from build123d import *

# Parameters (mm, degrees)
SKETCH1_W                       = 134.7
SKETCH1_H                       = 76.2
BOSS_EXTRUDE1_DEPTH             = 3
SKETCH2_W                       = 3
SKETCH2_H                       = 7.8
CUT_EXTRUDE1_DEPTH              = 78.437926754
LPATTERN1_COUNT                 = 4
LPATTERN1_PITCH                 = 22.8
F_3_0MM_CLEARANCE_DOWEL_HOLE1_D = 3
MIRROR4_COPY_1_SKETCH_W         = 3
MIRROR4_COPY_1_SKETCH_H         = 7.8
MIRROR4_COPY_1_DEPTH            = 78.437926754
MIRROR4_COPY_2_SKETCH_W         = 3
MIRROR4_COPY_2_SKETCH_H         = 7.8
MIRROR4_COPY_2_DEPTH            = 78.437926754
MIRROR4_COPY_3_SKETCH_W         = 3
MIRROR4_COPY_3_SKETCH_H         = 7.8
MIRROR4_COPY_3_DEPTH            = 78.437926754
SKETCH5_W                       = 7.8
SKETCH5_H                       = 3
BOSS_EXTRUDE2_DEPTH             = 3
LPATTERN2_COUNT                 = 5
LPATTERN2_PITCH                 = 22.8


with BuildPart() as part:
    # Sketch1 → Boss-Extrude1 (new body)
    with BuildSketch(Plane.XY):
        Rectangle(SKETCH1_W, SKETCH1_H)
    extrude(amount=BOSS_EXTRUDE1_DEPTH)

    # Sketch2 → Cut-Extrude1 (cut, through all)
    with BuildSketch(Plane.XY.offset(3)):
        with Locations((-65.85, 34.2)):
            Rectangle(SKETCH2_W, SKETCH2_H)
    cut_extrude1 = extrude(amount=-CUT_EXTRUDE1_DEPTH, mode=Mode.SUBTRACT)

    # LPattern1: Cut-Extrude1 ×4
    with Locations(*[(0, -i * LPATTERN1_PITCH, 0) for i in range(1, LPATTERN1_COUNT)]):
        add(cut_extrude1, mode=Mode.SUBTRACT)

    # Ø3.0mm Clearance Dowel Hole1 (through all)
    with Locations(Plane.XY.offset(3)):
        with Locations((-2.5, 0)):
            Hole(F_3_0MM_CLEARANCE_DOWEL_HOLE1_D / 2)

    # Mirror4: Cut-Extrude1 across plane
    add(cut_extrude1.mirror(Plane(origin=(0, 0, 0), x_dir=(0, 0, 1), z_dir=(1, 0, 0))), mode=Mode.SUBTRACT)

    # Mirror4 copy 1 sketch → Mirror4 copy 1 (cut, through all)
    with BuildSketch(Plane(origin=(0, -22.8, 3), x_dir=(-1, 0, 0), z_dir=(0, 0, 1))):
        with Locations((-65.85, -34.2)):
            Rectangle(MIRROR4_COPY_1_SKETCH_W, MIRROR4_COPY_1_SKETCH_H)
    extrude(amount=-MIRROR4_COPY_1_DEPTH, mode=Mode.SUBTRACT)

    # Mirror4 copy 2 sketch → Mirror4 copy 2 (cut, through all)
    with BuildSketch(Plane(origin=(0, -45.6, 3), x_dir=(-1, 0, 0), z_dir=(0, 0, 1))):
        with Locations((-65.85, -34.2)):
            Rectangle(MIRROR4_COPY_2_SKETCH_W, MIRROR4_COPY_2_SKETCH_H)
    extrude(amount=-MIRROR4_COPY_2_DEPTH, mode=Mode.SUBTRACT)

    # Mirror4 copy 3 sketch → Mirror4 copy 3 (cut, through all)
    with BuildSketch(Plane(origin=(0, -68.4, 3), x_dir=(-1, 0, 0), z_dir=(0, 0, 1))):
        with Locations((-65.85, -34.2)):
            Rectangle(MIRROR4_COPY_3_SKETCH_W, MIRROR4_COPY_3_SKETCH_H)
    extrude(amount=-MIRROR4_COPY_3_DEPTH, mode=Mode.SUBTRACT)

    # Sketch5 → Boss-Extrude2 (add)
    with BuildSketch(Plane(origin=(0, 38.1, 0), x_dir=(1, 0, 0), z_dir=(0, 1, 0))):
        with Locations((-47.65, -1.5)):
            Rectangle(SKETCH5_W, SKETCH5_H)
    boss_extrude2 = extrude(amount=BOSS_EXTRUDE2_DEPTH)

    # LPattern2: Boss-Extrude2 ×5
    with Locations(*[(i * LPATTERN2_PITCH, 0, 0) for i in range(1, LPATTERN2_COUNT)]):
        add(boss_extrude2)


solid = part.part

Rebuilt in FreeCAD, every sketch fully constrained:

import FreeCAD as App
import Part
import Sketcher
from FreeCAD import Vector
Q = App.Units.Quantity


def add_polygon(sketch, points):
    """Adds a closed chain of lines whose ends are joined by coincident constraints."""
    first, n = sketch.GeometryCount, len(points)
    for a, b in zip(points, points[1:] + points[:1]):
        sketch.addGeometry(Part.LineSegment(App.Vector(*a, 0), App.Vector(*b, 0)), False)
    for i in range(n):
        sketch.addConstraint(Sketcher.Constraint("Coincident", first + i, 2, first + (i + 1) % n, 1))

doc = App.newDocument("Part")
body = doc.addObject("PartDesign::Body", "Body")

sketch1 = body.newObject("Sketcher::SketchObject", "Sketch")
sketch1.AttachmentSupport = (doc.getObject("XY_Plane"), [""])
sketch1.MapMode = "FlatFace"
add_polygon(sketch1, [(-67, 38), (-67, -38), (67, -38), (67, 38)])
sketch1.addConstraint([
    Sketcher.Constraint("Vertical", 0),
    Sketcher.Constraint("Horizontal", 1),
    Sketcher.Constraint("Vertical", 2),
    Sketcher.Constraint("Horizontal", 3),
    Sketcher.Constraint("Symmetric", 0, 2, 2, 2, -1, 1),
    Sketcher.Constraint("DistanceX", 1, 1, 1, 2, Q("134.7 mm")),
    Sketcher.Constraint("DistanceY", 0, 2, 0, 1, Q("76.2 mm")),
])
pad1 = body.newObject("PartDesign::Pad", "Pad")
pad1.Profile = sketch1
pad1.Length = 3

sketch2 = body.newObject("Sketcher::SketchObject", "Sketch001")
sketch2.AttachmentSupport = (doc.getObject("XY_Plane"), [""])
sketch2.MapMode = "FlatFace"
sketch2.AttachmentOffset = App.Placement(Vector(0, 0, 3), App.Rotation())
add_polygon(sketch2, [(-67.3, 38.1), (-67.3, 30.3), (-64.3, 30.3), (-64.3, 38.1)])
sketch2.addConstraint([
    Sketcher.Constraint("Vertical", 0),
    Sketcher.Constraint("Horizontal", 1),
    Sketcher.Constraint("Vertical", 2),
    Sketcher.Constraint("Horizontal", 3),
    Sketcher.Constraint("DistanceX", 1, 1, 1, 2, Q("3 mm")),
    Sketcher.Constraint("DistanceY", 0, 2, 0, 1, Q("7.8 mm")),
    Sketcher.Constraint("DistanceY", -1, 1, 0, 2, Q("30.3 mm")),
    Sketcher.Constraint("DistanceX", 0, 2, -1, 1, Q("67.35 mm")),
])
pocket1 = body.newObject("PartDesign::Pocket", "Pocket")
pocket1.Profile = sketch2
pocket1.Type = "ThroughAll"
doc.recompute()

linearpattern = body.newObject("PartDesign::LinearPattern", "LinearPattern")
linearpattern.Originals = [pocket1]
linearpattern.Direction = (doc.getObject("Y_Axis"), [""])
linearpattern.Mode = "offset"
linearpattern.Offset = 22.8
linearpattern.Occurrences = 4
linearpattern.Reversed = True
body.Tip = linearpattern

sketch3 = body.newObject("Sketcher::SketchObject", "Sketch002")
sketch3.AttachmentSupport = (doc.getObject("XY_Plane"), [""])
sketch3.MapMode = "FlatFace"
sketch3.AttachmentOffset = App.Placement(Vector(0, 0, 3), App.Rotation())
sketch3.addGeometry(Part.Circle(Vector(-2.5, 0, 0), Vector(0, 0, 1), 1.5), False)
sketch3.addConstraint([
    Sketcher.Constraint("PointOnObject", 0, 3, -1),
    Sketcher.Constraint("Diameter", 0, Q("3 mm")),
    Sketcher.Constraint("DistanceX", 0, 3, -1, 1, Q("2.5 mm")),
])
doc.recompute()
hole = body.newObject("PartDesign::Hole", "Hole")
hole.Profile = sketch3
hole.ThreadType = "None"
hole.Diameter = 3
hole.DepthType = "ThroughAll"
doc.recompute()

mirrored = body.newObject("PartDesign::Mirrored", "Mirrored")
mirrored.Originals = [pocket1]
mirrored.MirrorPlane = (doc.getObject("YZ_Plane"), [""])
body.Tip = mirrored

sketch4 = body.newObject("Sketcher::SketchObject", "Sketch003")
sketch4.AttachmentSupport = (doc.getObject("XY_Plane"), [""])
sketch4.MapMode = "FlatFace"
sketch4.AttachmentOffset = App.Placement(Vector(0, 0, 3), App.Rotation())
add_polygon(sketch4, [(67.3, 7.5), (67.3, 15.3), (64.3, 15.3), (64.3, 7.5)])
sketch4.addConstraint([
    Sketcher.Constraint("Vertical", 0),
    Sketcher.Constraint("Horizontal", 1),
    Sketcher.Constraint("Vertical", 2),
    Sketcher.Constraint("Horizontal", 3),
    Sketcher.Constraint("DistanceX", 1, 2, 1, 1, Q("3 mm")),
    Sketcher.Constraint("DistanceY", 0, 1, 0, 2, Q("7.8 mm")),
    Sketcher.Constraint("DistanceY", -1, 1, 0, 2, Q("15.3 mm")),
    Sketcher.Constraint("DistanceX", -1, 1, 0, 2, Q("67.35 mm")),
])
pocket2 = body.newObject("PartDesign::Pocket", "Pocket001")
pocket2.Profile = sketch4
pocket2.Type = "ThroughAll"

sketch5 = body.newObject("Sketcher::SketchObject", "Sketch004")
sketch5.AttachmentSupport = (doc.getObject("XY_Plane"), [""])
sketch5.MapMode = "FlatFace"
sketch5.AttachmentOffset = App.Placement(Vector(0, 0, 3), App.Rotation())
add_polygon(sketch5, [(67.3, -15.3), (67.3, -7.5), (64.3, -7.5), (64.3, -15.3)])
sketch5.addConstraint([
    Sketcher.Constraint("Vertical", 0),
    Sketcher.Constraint("Horizontal", 1),
    Sketcher.Constraint("Vertical", 2),
    Sketcher.Constraint("Horizontal", 3),
    Sketcher.Constraint("DistanceX", 1, 2, 1, 1, Q("3 mm")),
    Sketcher.Constraint("DistanceY", 0, 1, 0, 2, Q("7.8 mm")),
    Sketcher.Constraint("DistanceY", 0, 2, -1, 1, Q("7.5 mm")),
    Sketcher.Constraint("DistanceX", -1, 1, 0, 2, Q("67.35 mm")),
])
pocket3 = body.newObject("PartDesign::Pocket", "Pocket002")
pocket3.Profile = sketch5
pocket3.Type = "ThroughAll"

sketch6 = body.newObject("Sketcher::SketchObject", "Sketch005")
sketch6.AttachmentSupport = (doc.getObject("XY_Plane"), [""])
sketch6.MapMode = "FlatFace"
sketch6.AttachmentOffset = App.Placement(Vector(0, 0, 3), App.Rotation())
add_polygon(sketch6, [(67.3, -38.1), (67.3, -30.3), (64.3, -30.3), (64.3, -38.1)])
sketch6.addConstraint([
    Sketcher.Constraint("Vertical", 0),
    Sketcher.Constraint("Horizontal", 1),
    Sketcher.Constraint("Vertical", 2),
    Sketcher.Constraint("Horizontal", 3),
    Sketcher.Constraint("DistanceX", 1, 2, 1, 1, Q("3 mm")),
    Sketcher.Constraint("DistanceY", 0, 1, 0, 2, Q("7.8 mm")),
    Sketcher.Constraint("DistanceY", 0, 2, -1, 1, Q("30.3 mm")),
    Sketcher.Constraint("DistanceX", -1, 1, 0, 2, Q("67.35 mm")),
])
pocket4 = body.newObject("PartDesign::Pocket", "Pocket003")
pocket4.Profile = sketch6
pocket4.Type = "ThroughAll"

sketch7 = body.newObject("Sketcher::SketchObject", "Sketch006")
sketch7.AttachmentSupport = (doc.getObject("XZ_Plane"), [""])
sketch7.MapMode = "FlatFace"
sketch7.AttachmentOffset = App.Placement(Vector(0, 0, -38.1), App.Rotation())
add_polygon(sketch7, [(-51.5, 0), (-51.5, 3), (-43.8, 3), (-43.8, 0)])
sketch7.addConstraint([
    Sketcher.Constraint("Vertical", 0),
    Sketcher.Constraint("Horizontal", 1),
    Sketcher.Constraint("Vertical", 2),
    Sketcher.Constraint("Horizontal", 3),
    Sketcher.Constraint("PointOnObject", 2, 2, -1),
    Sketcher.Constraint("DistanceY", 0, 1, 0, 2, Q("3 mm")),
    Sketcher.Constraint("DistanceX", 1, 1, 1, 2, Q("7.8 mm")),
    Sketcher.Constraint("DistanceX", 0, 2, -1, 1, Q("51.55 mm")),
])
pad2 = body.newObject("PartDesign::Pad", "Pad001")
pad2.Profile = sketch7
pad2.Length = 3
pad2.Reversed = True
doc.recompute()

linearpattern2 = body.newObject("PartDesign::LinearPattern", "LinearPattern001")
linearpattern2.Originals = [pad2]
linearpattern2.Direction = (doc.getObject("X_Axis"), [""])
linearpattern2.Mode = "offset"
linearpattern2.Offset = 22.8
linearpattern2.Occurrences = 5
body.Tip = linearpattern2

doc.recompute()
